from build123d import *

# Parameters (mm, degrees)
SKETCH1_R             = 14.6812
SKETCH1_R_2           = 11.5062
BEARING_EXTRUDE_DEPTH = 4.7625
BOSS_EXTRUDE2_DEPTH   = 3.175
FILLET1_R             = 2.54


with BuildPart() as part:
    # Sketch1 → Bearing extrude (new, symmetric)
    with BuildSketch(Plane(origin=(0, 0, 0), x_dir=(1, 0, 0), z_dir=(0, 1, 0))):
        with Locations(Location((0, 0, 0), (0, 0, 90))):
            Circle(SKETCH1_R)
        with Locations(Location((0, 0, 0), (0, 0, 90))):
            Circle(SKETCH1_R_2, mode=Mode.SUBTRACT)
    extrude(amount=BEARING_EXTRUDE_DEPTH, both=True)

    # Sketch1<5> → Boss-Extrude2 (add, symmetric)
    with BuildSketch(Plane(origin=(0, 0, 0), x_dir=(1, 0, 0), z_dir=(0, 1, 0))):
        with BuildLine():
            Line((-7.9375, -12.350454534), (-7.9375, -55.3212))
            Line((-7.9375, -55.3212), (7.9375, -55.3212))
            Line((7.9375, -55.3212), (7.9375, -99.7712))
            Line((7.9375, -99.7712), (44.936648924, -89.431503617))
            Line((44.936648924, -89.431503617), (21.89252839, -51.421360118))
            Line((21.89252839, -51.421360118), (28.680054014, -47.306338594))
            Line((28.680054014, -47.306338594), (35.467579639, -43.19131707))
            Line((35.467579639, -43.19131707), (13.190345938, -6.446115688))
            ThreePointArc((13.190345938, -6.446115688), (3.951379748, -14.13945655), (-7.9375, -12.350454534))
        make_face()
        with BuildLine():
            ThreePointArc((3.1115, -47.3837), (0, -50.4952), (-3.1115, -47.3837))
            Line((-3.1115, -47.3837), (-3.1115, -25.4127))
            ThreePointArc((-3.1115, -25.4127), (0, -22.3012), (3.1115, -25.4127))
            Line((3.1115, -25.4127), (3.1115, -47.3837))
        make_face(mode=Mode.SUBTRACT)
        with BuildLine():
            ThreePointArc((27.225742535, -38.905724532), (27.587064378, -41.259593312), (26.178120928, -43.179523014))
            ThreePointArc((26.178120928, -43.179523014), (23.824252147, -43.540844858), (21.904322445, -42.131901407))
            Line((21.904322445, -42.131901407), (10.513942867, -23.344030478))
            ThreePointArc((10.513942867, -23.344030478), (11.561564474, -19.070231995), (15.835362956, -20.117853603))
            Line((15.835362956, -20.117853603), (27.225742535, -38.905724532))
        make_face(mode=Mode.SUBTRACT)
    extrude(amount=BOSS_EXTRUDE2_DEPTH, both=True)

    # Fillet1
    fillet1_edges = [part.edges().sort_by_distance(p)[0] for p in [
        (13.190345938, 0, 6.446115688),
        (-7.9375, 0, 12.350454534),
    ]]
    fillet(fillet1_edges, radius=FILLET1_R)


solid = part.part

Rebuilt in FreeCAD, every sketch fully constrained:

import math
import FreeCAD as App
import Part
import Sketcher
Q = App.Units.Quantity


def edges_at(feature, points):
    """Names of the edges that pass closest to the given points."""
    edges = feature.Shape.Edges
    near = lambda p: min(range(len(edges)), key=lambda i: edges[i].distToShape(Part.Vertex(*p))[0])
    return sorted({f"Edge{near(p) + 1}" for p in points})

doc = App.newDocument("Part")
body = doc.addObject("PartDesign::Body", "Body")

# Sketch on XZ plane
sketch1 = body.newObject("Sketcher::SketchObject", "Sketch")
sketch1.AttachmentSupport = (doc.getObject("XZ_Plane"), [""])
sketch1.MapMode = "FlatFace"
sketch1.addGeometry(Part.Circle(App.Vector(0, 0, 0), App.Vector(0, 0, 1), 15), False)
sketch1.addGeometry(Part.Circle(App.Vector(0, 0, 0), App.Vector(0, 0, 1), 12), False)
sketch1.addConstraint(Sketcher.Constraint("Coincident", 0, 3, -1, 1))
sketch1.addConstraint(Sketcher.Constraint("Coincident", 1, 3, -1, 1))
sketch1.addConstraint(Sketcher.Constraint("Diameter", 0, Q("1.156 in")))
sketch1.addConstraint(Sketcher.Constraint("Diameter", 1, Q("0.906 in")))
pad1 = body.newObject("PartDesign::Pad", "Pad")
pad1.Profile = sketch1
pad1.Length = Q("0.375 in")
pad1.Midplane = True

# Sketch on XZ plane
sketch2 = body.newObject("Sketcher::SketchObject", "Sketch001")
sketch2.AttachmentSupport = (doc.getObject("XZ_Plane"), [""])
sketch2.MapMode = "FlatFace"
sketch2.addGeometry(Part.LineSegment(App.Vector(-7.9375, 12.350455, 0), App.Vector(-7.9375, 55.3212, 0)), False)
sketch2.addGeometry(Part.LineSegment(App.Vector(-7.9375, 55.3212, 0), App.Vector(7.9375, 55.3212, 0)), False)
sketch2.addGeometry(Part.LineSegment(App.Vector(7.9375, 55.3212, 0), App.Vector(7.9375, 99.7712, 0)), False)
sketch2.addGeometry(Part.LineSegment(App.Vector(7.9375, 99.7712, 0), App.Vector(44.936649, 89.431504, 0)), False)
sketch2.addGeometry(Part.LineSegment(App.Vector(44.936649, 89.431504, 0), App.Vector(21.892528, 51.42136, 0)), False)
sketch2.addGeometry(Part.LineSegment(App.Vector(21.892528, 51.42136, 0), App.Vector(28.680054, 47.306339, 0)), False)
sketch2.addGeometry(Part.LineSegment(App.Vector(28.680054, 47.306339, 0), App.Vector(35.46758, 43.191317, 0)), False)
sketch2.addGeometry(Part.LineSegment(App.Vector(35.46758, 43.191317, 0), App.Vector(13.190346, 6.446116, 0)), False)
sketch2.addGeometry(Part.ArcOfCircle(Part.Circle(App.Vector(0, 0, 0), App.Vector(0, 0, 1), 14.6812), math.radians(26.044738), math.radians(122.728405)), False)
sketch2.addGeometry(Part.LineSegment(App.Vector(3.1115, 25.4127, 0), App.Vector(3.1115, 47.3837, 0)), False)
sketch2.addGeometry(Part.ArcOfCircle(Part.Circle(App.Vector(0, 47.3837, 0), App.Vector(0, 0, 1), 3.1115), math.radians(0), math.radians(180)), False)
sketch2.addGeometry(Part.LineSegment(App.Vector(-3.1115, 47.3837, 0), App.Vector(-3.1115, 25.4127, 0)), False)
sketch2.addGeometry(Part.ArcOfCircle(Part.Circle(App.Vector(0, 25.4127, 0), App.Vector(0, 0, 1), 3.1115), math.radians(180), math.radians(360)), False)
sketch2.addGeometry(Part.LineSegment(App.Vector(15.835363, 20.117854, 0), App.Vector(27.225743, 38.905725, 0)), False)
sketch2.addGeometry(Part.ArcOfCircle(Part.Circle(App.Vector(24.565032, 40.518813, 0), App.Vector(0, 0, 1), 3.1115), math.radians(-31.226858), math.radians(58.773142)), False)
sketch2.addGeometry(Part.ArcOfCircle(Part.Circle(App.Vector(24.565032, 40.518813, 0), App.Vector(0, 0, 1), 3.1115), math.radians(58.773142), math.radians(148.773142)), False)
sketch2.addGeometry(Part.LineSegment(App.Vector(21.904322, 42.131901, 0), App.Vector(10.513943, 23.34403, 0)), False)
sketch2.addGeometry(Part.ArcOfCircle(Part.Circle(App.Vector(13.174653, 21.730942, 0), App.Vector(0, 0, 1), 3.1115), math.radians(148.773142), math.radians(328.773142)), False)
sketch2.addConstraint(Sketcher.Constraint("Coincident", 0, 2, 1, 1))
sketch2.addConstraint(Sketcher.Constraint("Coincident", 1, 2, 2, 1))
sketch2.addConstraint(Sketcher.Constraint("Coincident", 2, 2, 3, 1))
sketch2.addConstraint(Sketcher.Constraint("Coincident", 3, 2, 4, 1))
sketch2.addConstraint(Sketcher.Constraint("Coincident", 4, 2, 5, 1))
sketch2.addConstraint(Sketcher.Constraint("Coincident", 5, 2, 6, 1))
sketch2.addConstraint(Sketcher.Constraint("Coincident", 6, 2, 7, 1))
sketch2.addConstraint(Sketcher.Constraint("Coincident", 7, 2, 8, 1))
sketch2.addConstraint(Sketcher.Constraint("Coincident", 8, 2, 0, 1))
sketch2.addConstraint(Sketcher.Constraint("Coincident", 9, 2, 10, 1))
sketch2.addConstraint(Sketcher.Constraint("Coincident", 10, 2, 11, 1))
sketch2.addConstraint(Sketcher.Constraint("Coincident", 11, 2, 12, 1))
sketch2.addConstraint(Sketcher.Constraint("Coincident", 12, 2, 9, 1))
sketch2.addConstraint(Sketcher.Constraint("Coincident", 13, 2, 14, 1))
sketch2.addConstraint(Sketcher.Constraint("Coincident", 14, 2, 15, 1))
sketch2.addConstraint(Sketcher.Constraint("Coincident", 15, 2, 16, 1))
sketch2.addConstraint(Sketcher.Constraint("Coincident", 16, 2, 17, 1))
sketch2.addConstraint(Sketcher.Constraint("Coincident", 17, 2, 13, 1))
sketch2.addConstraint(Sketcher.Constraint("Vertical", 0))
sketch2.addConstraint(Sketcher.Constraint("Horizontal", 1))
sketch2.addConstraint(Sketcher.Constraint("Vertical", 2))
sketch2.addConstraint(Sketcher.Constraint("Vertical", 9))
sketch2.addConstraint(Sketcher.Constraint("Vertical", 11))
sketch2.addConstraint(Sketcher.Constraint("Coincident", 8, 3, -1, 1))
sketch2.addConstraint(Sketcher.Constraint("Coincident", 15, 3, 14, 3))
sketch2.addConstraint(Sketcher.Constraint("PointOnObject", 10, 3, -2))
sketch2.addConstraint(Sketcher.Constraint("Radius", 8, Q("0.578 in")))
sketch2.addConstraint(Sketcher.Constraint("DistanceY", 2, 1, 2, 2, Q("1.75 in")))
sketch2.addConstraint(Sketcher.Constraint("Radius", 10, Q("0.1225 in")))
sketch2.addConstraint(Sketcher.Constraint("Radius", 14, Q("0.1225 in")))
sketch2.addConstraint(Sketcher.Constraint("Radius", 17, Q("0.1225 in")))
sketch2.addConstraint(Sketcher.Constraint("Distance", 4, Q("1.75 in")))
sketch2.addConstraint(Sketcher.Constraint("DistanceX", 1, 1, 1, 2, Q("0.625 in")))
sketch2.addConstraint(Sketcher.Constraint("DistanceY", 9, 1, 9, 2, Q("0.865 in")))
sketch2.addConstraint(Sketcher.Constraint("DistanceY", 11, 2, 11, 1, Q("0.865 in")))
sketch2.addConstraint(Sketcher.Constraint("DistanceX", 9, 2, 1, 2, Q("0.19 in")))
sketch2.addConstraint(Sketcher.Constraint("Distance", 5, Q("0.3125 in")))
sketch2.addConstraint(Sketcher.Constraint("Distance", 6, Q("0.3125 in")))
sketch2.addConstraint(Sketcher.Constraint("Distance", 13, Q("0.865 in")))
sketch2.addConstraint(Sketcher.Constraint("Distance", 16, Q("0.865 in")))
sketch2.addConstraint(Sketcher.Constraint("DistanceY", -1, 1, 0, 2, Q("2.178 in")))
sketch2.addConstraint(Sketcher.Constraint("DistanceY", 12, 3, 10, 3, Q("0.865 in")))
sketch2.addConstraint(Sketcher.Constraint("DistanceY", 10, 3, 0, 2, Q("0.3125 in")))
sketch2.addConstraint(Sketcher.Constraint("DistanceY", 9, 2, 1, 2, Q("0.3125 in")))
sketch2.addConstraint(Sketcher.Constraint("DistanceY", 10, 2, 0, 2, Q("0.3125 in")))
sketch2.addConstraint(Sketcher.Constraint("DistanceY", -1, 1, 15, 2, Q("42.131901 mm")))
sketch2.addConstraint(Sketcher.Constraint("DistanceY", 13, 2, 14, 2, Q("4.273798 mm")))
sketch2.addConstraint(Sketcher.Constraint("DistanceX", 15, 2, 14, 2, Q("4.273798 mm")))
sketch2.addConstraint(Sketcher.Constraint("DistanceX", -1, 1, 3, 2, Q("44.936649 mm")))
sketch2.addConstraint(Sketcher.Constraint("DistanceX", -1, 1, 4, 2, Q("21.892528 mm")))
sketch2.addConstraint(Sketcher.Constraint("DistanceY", -1, 1, 4, 2, Q("51.42136 mm")))
sketch2.addConstraint(Sketcher.Constraint("DistanceY", -1, 1, 5, 2, Q("47.306339 mm")))
sketch2.addConstraint(Sketcher.Constraint("DistanceX", -1, 1, 6, 2, Q("35.46758 mm")))
sketch2.addConstraint(Sketcher.Constraint("DistanceX", -1, 1, 14, 2, Q("26.178121 mm")))
sketch2.addConstraint(Sketcher.Constraint("DistanceY", -1, 1, 16, 2, Q("23.34403 mm")))
sketch2.addConstraint(Sketcher.Constraint("DistanceX", 17, 3, 14, 3, Q("11.39038 mm")))
sketch2.addConstraint(Sketcher.Constraint("DistanceY", 15, 3, 3, 2, Q("48.912691 mm")))
sketch2.addConstraint(Sketcher.Constraint("DistanceY", 7, 2, 8, 2, Q("5.904339 mm")))
pad2 = body.newObject("PartDesign::Pad", "Pad001")
pad2.Profile = sketch2
pad2.Length = Q("0.25 in")
pad2.Midplane = True
doc.recompute()

fillet = body.newObject("PartDesign::Fillet", "Fillet")
fillet.Base = (pad2, edges_at(pad2, [(13.19, 0, 6.446), (-7.938, 0, 12.35)]))
fillet.Radius = Q("0.1 in")

doc.recompute()
